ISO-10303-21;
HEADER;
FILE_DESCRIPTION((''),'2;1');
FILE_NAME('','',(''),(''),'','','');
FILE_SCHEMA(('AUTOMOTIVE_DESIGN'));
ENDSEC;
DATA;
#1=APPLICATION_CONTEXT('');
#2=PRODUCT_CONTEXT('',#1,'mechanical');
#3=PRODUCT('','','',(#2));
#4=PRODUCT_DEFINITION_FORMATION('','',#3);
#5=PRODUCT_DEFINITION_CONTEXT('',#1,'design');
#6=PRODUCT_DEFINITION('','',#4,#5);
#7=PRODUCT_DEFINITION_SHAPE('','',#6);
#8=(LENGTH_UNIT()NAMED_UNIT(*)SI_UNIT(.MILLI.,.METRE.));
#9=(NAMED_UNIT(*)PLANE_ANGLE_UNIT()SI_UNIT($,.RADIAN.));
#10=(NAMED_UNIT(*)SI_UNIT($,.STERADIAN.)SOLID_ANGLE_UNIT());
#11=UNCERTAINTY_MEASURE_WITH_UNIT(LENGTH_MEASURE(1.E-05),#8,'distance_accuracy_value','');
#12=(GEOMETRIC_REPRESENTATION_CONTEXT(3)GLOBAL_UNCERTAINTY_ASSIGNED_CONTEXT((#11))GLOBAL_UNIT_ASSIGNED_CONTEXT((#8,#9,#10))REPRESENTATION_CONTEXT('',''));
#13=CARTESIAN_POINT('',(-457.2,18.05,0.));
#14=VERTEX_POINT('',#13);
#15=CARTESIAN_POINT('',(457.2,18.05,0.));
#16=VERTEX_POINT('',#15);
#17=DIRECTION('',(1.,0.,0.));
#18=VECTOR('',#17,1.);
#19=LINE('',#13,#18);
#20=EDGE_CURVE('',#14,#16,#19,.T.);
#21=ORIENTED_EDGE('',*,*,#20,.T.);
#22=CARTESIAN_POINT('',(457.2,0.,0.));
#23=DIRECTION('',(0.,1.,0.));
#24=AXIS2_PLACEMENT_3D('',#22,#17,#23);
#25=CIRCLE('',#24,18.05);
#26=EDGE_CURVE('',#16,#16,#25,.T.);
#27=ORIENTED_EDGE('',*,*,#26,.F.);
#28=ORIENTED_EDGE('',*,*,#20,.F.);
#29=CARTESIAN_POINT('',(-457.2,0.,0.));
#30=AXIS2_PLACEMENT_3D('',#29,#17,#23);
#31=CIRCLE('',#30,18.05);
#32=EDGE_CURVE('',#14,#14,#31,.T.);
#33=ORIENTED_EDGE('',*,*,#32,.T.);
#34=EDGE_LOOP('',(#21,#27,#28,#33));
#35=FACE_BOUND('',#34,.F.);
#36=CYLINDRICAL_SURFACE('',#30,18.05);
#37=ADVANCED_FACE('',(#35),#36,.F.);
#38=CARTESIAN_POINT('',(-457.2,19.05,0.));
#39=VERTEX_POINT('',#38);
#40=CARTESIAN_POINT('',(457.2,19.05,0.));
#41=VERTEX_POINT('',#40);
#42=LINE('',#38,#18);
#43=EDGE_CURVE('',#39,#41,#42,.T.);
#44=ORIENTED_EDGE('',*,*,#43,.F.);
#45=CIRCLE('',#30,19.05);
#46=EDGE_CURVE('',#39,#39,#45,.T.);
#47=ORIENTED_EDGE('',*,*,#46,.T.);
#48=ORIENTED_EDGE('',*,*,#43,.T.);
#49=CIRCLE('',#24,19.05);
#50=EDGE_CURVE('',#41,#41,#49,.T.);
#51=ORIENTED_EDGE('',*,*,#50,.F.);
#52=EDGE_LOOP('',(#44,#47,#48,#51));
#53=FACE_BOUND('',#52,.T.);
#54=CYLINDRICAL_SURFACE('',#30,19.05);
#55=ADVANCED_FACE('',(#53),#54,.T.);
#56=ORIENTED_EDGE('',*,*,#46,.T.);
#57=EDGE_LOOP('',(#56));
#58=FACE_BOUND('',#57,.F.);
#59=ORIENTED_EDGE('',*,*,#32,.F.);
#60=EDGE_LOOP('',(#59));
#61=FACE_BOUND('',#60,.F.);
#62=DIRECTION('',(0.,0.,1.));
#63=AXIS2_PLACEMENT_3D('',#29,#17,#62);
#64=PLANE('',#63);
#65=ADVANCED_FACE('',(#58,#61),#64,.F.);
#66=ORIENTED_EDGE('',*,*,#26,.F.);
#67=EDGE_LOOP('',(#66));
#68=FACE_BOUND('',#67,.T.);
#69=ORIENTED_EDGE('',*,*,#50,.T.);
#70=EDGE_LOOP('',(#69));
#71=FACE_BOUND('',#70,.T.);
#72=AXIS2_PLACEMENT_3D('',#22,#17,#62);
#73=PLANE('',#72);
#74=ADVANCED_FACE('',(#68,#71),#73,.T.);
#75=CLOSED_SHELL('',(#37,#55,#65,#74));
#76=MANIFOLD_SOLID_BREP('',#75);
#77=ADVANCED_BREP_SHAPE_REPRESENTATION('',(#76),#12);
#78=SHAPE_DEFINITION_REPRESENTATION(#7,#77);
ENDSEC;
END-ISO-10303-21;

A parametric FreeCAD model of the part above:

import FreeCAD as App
import Part
import Sketcher
Q = App.Units.Quantity

doc = App.newDocument("Part")
body = doc.addObject("PartDesign::Body", "Body")

# Sketch on YZ plane
sketch1 = body.newObject("Sketcher::SketchObject", "Sketch")
sketch1.AttachmentSupport = (doc.getObject("YZ_Plane"), [""])
sketch1.MapMode = "FlatFace"
sketch1.AttachmentOffset = App.Placement(App.Vector(0, 0, -18 * 25.4), App.Rotation())
sketch1.addGeometry(Part.Circle(App.Vector(0, 0, 0), App.Vector(0, 0, 1), 19.05), False)
sketch1.addGeometry(Part.Circle(App.Vector(0, 0, 0), App.Vector(0, 0, 1), 18.05), False)
sketch1.addConstraint(Sketcher.Constraint("Coincident", 0, 3, -1, 1))
sketch1.addConstraint(Sketcher.Constraint("Coincident", 1, 3, -1, 1))
sketch1.addConstraint(Sketcher.Constraint("Diameter", 0, Q("1.5 in")))
sketch1.addConstraint(Sketcher.Constraint("Diameter", 1, 36.1))

# Sketch on XY plane
sketch2 = body.newObject("Sketcher::SketchObject", "Sketch001")
sketch2.AttachmentSupport = (doc.getObject("XY_Plane"), [""])
sketch2.MapMode = "FlatFace"
sketch2.addGeometry(Part.LineSegment(App.Vector(-457.2, 0, 0), App.Vector(457.2, 0, 0)), False)
sketch2.addConstraint(Sketcher.Constraint("Horizontal", 0))
sketch2.addConstraint(Sketcher.Constraint("Symmetric", 0, 1, 0, 2, -1, 1))
sketch2.addConstraint(Sketcher.Constraint("DistanceX", 0, 1, 0, 2, Q("36 in")))
doc.recompute()

additivepipe = body.newObject("PartDesign::AdditivePipe", "AdditivePipe")
additivepipe.Profile = sketch1
additivepipe.Spine = (sketch2, ["Edge1"])

doc.recompute()
